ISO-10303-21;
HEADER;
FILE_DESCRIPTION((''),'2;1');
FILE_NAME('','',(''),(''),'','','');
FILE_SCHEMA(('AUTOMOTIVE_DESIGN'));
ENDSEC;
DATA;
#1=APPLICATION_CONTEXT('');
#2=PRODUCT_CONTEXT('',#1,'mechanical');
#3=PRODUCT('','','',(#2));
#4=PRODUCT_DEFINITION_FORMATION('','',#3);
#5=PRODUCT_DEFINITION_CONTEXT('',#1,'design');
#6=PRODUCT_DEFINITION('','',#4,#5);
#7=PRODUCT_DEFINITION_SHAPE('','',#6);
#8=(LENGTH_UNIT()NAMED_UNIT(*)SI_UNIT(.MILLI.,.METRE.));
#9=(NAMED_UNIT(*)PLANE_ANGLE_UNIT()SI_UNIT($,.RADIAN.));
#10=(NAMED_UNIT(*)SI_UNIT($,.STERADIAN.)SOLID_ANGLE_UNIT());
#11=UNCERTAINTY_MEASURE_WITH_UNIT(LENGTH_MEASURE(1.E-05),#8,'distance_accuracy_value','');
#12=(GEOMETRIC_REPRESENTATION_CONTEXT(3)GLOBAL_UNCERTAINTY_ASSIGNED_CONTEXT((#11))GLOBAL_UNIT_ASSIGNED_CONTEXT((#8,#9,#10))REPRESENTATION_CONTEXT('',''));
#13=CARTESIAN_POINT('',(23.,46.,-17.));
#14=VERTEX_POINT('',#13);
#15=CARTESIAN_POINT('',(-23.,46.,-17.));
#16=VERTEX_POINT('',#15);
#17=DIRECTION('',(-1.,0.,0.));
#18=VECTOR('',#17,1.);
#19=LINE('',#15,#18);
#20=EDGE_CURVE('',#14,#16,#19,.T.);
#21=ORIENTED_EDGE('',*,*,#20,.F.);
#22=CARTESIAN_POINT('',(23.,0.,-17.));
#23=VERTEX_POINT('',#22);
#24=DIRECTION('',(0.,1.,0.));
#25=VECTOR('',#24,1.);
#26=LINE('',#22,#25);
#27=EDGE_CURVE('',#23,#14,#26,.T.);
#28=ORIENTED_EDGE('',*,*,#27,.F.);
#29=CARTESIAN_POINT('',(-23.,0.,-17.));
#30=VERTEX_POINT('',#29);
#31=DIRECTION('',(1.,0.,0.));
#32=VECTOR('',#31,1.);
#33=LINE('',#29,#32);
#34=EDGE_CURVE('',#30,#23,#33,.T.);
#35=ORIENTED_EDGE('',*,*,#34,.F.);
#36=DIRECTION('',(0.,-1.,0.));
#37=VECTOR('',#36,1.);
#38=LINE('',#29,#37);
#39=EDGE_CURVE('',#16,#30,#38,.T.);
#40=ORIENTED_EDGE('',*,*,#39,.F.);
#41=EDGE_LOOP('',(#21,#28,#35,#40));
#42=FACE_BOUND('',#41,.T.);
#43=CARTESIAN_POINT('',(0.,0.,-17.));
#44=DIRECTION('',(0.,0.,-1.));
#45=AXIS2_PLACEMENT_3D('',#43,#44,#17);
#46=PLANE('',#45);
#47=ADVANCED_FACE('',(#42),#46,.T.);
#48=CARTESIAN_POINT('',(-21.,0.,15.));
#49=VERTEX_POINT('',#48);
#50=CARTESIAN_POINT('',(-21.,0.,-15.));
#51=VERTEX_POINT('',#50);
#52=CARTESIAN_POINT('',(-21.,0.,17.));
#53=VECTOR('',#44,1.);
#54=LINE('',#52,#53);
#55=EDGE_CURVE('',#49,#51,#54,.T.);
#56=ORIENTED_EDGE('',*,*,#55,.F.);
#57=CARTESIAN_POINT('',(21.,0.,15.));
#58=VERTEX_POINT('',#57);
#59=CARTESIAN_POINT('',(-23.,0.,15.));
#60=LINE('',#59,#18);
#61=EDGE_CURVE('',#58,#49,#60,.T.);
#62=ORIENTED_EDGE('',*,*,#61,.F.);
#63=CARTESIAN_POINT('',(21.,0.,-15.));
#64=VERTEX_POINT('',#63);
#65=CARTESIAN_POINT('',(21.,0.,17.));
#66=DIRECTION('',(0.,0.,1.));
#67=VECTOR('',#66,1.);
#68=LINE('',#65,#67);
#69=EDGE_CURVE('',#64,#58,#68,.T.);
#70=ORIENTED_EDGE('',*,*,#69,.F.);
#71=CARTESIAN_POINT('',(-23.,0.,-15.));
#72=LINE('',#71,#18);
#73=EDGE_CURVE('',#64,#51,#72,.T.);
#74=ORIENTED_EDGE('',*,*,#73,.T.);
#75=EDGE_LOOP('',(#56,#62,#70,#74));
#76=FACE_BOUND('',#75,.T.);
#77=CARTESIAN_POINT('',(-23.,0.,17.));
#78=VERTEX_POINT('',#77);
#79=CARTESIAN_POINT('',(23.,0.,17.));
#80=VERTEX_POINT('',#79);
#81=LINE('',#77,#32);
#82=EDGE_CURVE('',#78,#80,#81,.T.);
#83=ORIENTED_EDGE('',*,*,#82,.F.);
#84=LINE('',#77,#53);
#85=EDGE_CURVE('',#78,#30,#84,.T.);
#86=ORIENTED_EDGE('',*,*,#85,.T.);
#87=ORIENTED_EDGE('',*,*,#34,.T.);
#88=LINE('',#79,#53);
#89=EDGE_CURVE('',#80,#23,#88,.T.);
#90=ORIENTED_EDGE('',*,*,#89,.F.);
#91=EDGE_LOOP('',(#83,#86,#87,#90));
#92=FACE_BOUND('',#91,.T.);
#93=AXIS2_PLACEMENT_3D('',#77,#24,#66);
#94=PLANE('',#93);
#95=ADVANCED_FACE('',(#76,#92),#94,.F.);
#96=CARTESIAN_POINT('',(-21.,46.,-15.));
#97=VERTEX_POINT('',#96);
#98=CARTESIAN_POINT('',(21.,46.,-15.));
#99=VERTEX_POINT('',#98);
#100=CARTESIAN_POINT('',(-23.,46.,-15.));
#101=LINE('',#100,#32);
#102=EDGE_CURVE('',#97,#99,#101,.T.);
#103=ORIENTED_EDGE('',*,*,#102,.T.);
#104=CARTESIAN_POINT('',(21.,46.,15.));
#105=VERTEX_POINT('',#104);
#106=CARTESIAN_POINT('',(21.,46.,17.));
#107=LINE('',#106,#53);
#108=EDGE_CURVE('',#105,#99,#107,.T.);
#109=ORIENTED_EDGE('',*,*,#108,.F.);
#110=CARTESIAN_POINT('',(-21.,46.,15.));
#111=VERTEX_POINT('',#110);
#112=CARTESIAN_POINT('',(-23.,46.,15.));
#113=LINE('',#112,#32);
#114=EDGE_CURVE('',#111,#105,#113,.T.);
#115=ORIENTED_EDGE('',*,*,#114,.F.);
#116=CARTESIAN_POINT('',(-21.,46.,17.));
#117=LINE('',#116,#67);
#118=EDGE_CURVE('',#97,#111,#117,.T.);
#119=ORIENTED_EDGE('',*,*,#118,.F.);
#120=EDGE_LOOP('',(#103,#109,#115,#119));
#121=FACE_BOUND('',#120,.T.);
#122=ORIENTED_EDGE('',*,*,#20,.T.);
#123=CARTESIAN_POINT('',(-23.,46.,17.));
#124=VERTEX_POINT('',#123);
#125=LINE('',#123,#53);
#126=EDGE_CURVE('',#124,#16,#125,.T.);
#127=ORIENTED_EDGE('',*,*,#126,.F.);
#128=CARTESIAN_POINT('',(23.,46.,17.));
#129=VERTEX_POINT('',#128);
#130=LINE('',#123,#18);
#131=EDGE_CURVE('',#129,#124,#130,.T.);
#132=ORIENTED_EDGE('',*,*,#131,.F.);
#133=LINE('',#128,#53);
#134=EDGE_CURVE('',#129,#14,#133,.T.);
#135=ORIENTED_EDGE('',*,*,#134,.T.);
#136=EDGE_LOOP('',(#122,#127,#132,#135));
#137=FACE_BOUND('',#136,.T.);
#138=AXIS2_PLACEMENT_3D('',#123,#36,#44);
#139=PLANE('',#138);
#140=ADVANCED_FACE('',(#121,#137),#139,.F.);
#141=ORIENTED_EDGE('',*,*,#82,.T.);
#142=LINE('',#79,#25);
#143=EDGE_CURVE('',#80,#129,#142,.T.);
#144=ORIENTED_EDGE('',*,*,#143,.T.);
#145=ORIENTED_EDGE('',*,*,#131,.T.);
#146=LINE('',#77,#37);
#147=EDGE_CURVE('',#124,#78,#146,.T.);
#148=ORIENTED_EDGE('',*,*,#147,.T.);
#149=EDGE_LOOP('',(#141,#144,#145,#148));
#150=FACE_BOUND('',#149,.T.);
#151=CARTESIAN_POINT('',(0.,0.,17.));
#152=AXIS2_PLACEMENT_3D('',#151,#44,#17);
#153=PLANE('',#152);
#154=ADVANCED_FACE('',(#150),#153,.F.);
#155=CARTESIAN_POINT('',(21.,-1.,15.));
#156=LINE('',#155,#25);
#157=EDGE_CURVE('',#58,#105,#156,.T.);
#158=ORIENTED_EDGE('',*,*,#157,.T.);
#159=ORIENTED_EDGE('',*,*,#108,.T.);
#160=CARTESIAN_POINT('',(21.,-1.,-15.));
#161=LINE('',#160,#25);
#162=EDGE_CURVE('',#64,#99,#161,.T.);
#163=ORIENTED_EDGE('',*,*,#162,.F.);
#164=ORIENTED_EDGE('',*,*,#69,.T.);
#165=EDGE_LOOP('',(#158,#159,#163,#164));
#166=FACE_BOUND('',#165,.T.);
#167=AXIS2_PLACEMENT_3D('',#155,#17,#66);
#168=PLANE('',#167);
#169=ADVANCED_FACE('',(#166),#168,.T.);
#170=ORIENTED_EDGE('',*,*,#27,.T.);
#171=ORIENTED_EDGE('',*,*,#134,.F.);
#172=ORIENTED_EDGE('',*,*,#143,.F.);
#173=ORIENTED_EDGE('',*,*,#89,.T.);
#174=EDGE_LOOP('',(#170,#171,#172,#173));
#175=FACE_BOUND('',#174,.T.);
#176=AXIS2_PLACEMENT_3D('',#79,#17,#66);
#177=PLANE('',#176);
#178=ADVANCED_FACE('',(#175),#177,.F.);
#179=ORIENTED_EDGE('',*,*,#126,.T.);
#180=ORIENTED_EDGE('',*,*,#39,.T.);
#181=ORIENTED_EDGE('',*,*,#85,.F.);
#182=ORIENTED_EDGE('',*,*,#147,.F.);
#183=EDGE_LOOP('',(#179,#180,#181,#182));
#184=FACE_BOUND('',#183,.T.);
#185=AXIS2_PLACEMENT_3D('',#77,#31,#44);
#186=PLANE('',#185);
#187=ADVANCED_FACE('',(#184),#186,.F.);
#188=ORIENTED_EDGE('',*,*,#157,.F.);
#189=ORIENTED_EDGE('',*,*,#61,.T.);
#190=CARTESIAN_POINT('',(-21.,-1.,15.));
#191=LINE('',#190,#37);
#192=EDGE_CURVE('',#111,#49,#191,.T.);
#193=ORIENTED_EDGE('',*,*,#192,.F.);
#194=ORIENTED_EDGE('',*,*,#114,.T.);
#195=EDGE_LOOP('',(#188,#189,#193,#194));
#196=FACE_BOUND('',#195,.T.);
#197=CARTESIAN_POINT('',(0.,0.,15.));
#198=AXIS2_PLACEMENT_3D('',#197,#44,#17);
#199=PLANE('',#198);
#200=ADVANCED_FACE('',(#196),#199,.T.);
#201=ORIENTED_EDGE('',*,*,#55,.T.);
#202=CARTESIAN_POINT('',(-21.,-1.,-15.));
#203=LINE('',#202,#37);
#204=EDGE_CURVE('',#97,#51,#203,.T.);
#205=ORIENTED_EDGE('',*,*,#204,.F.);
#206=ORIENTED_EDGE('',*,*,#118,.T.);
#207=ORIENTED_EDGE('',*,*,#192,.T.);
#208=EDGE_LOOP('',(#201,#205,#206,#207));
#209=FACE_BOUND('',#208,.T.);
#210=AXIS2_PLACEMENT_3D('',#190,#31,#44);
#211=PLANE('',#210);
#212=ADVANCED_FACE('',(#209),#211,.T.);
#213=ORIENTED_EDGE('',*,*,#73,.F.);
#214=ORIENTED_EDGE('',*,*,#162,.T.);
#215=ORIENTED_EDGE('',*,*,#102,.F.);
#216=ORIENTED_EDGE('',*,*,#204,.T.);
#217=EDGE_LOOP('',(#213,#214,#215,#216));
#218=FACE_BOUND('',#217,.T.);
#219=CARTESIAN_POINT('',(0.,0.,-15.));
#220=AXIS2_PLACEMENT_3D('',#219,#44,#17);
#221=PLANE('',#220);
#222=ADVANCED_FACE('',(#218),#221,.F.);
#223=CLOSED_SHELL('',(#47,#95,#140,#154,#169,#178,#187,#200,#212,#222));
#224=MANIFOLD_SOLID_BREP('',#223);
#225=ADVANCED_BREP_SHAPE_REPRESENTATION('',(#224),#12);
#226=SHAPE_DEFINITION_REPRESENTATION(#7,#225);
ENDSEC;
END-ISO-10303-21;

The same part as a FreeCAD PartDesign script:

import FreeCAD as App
import Part
import Sketcher
from FreeCAD import Vector
Q = App.Units.Quantity

doc = App.newDocument("Part")
body = doc.addObject("PartDesign::Body", "Body")

sketch1 = doc.addObject("Sketcher::SketchObject", "Sketch")
body.addObject(sketch1)
sketch1.AttachmentSupport = (doc.XY_Plane, [""])
sketch1.MapMode = "FlatFace"
sketch1.AttachmentOffset = App.Placement(Vector(0, 0, -17), App.Rotation())
sketch1.addGeometry([
    Part.LineSegment(Vector(-23, 46, 0), Vector(-23, 0, 0)),
    Part.LineSegment(Vector(-23, 0, 0), Vector(23, 0, 0)),
    Part.LineSegment(Vector(23, 0, 0), Vector(23, 46, 0)),
    Part.LineSegment(Vector(23, 46, 0), Vector(-23, 46, 0)),
], False)
sketch1.addConstraint([
    Sketcher.Constraint("Coincident", 0, 2, 1, 1),
    Sketcher.Constraint("Coincident", 1, 2, 2, 1),
    Sketcher.Constraint("Coincident", 2, 2, 3, 1),
    Sketcher.Constraint("Coincident", 3, 2, 0, 1),
    Sketcher.Constraint("Vertical", 0),
    Sketcher.Constraint("Horizontal", 1),
    Sketcher.Constraint("Vertical", 2),
    Sketcher.Constraint("Horizontal", 3),
    Sketcher.Constraint("Symmetric", 0, 2, 1, 2, -1, 1),
    Sketcher.Constraint("Equal", 3, 0),
    Sketcher.Constraint("DistanceX", 1, 1, 1, 2, Q("46 mm")),
])
pad1 = doc.addObject("PartDesign::Pad", "Pad")
body.addObject(pad1)
pad1.Profile = sketch1
pad1.Length = 34
body2 = doc.addObject("PartDesign::Body", "Body001")

sketch2 = doc.addObject("Sketcher::SketchObject", "Sketch001")
body2.addObject(sketch2)
sketch2.AttachmentSupport = (doc.getObject("XY_Plane001"), [""])
sketch2.MapMode = "FlatFace"
sketch2.AttachmentOffset = App.Placement(Vector(0, 0, -15), App.Rotation())
sketch2.addGeometry([
    Part.LineSegment(Vector(-21, 47, 0), Vector(-21, -1, 0)),
    Part.LineSegment(Vector(-21, -1, 0), Vector(21, -1, 0)),
    Part.LineSegment(Vector(21, -1, 0), Vector(21, 47, 0)),
    Part.LineSegment(Vector(21, 47, 0), Vector(-21, 47, 0)),
], False)
sketch2.addConstraint([
    Sketcher.Constraint("Coincident", 0, 2, 1, 1),
    Sketcher.Constraint("Coincident", 1, 2, 2, 1),
    Sketcher.Constraint("Coincident", 2, 2, 3, 1),
    Sketcher.Constraint("Coincident", 3, 2, 0, 1),
    Sketcher.Constraint("Vertical", 0),
    Sketcher.Constraint("Horizontal", 1),
    Sketcher.Constraint("Vertical", 2),
    Sketcher.Constraint("Horizontal", 3),
    Sketcher.Constraint("DistanceX", 1, 1, 1, 2, Q("42 mm")),
    Sketcher.Constraint("DistanceY", 0, 2, 0, 1, Q("48 mm")),
    Sketcher.Constraint("DistanceX", 0, 2, -1, 1, Q("21 mm")),
    Sketcher.Constraint("DistanceY", 0, 2, -1, 1, Q("1 mm")),
])
pad2 = doc.addObject("PartDesign::Pad", "Pad001")
body2.addObject(pad2)
pad2.Profile = sketch2
pad2.Length = 30
doc.recompute()

boolean = doc.addObject("PartDesign::Boolean", "Boolean")
body.addObject(boolean)
boolean.Type = "Cut"
boolean.addObjects([body2])

doc.recompute()
